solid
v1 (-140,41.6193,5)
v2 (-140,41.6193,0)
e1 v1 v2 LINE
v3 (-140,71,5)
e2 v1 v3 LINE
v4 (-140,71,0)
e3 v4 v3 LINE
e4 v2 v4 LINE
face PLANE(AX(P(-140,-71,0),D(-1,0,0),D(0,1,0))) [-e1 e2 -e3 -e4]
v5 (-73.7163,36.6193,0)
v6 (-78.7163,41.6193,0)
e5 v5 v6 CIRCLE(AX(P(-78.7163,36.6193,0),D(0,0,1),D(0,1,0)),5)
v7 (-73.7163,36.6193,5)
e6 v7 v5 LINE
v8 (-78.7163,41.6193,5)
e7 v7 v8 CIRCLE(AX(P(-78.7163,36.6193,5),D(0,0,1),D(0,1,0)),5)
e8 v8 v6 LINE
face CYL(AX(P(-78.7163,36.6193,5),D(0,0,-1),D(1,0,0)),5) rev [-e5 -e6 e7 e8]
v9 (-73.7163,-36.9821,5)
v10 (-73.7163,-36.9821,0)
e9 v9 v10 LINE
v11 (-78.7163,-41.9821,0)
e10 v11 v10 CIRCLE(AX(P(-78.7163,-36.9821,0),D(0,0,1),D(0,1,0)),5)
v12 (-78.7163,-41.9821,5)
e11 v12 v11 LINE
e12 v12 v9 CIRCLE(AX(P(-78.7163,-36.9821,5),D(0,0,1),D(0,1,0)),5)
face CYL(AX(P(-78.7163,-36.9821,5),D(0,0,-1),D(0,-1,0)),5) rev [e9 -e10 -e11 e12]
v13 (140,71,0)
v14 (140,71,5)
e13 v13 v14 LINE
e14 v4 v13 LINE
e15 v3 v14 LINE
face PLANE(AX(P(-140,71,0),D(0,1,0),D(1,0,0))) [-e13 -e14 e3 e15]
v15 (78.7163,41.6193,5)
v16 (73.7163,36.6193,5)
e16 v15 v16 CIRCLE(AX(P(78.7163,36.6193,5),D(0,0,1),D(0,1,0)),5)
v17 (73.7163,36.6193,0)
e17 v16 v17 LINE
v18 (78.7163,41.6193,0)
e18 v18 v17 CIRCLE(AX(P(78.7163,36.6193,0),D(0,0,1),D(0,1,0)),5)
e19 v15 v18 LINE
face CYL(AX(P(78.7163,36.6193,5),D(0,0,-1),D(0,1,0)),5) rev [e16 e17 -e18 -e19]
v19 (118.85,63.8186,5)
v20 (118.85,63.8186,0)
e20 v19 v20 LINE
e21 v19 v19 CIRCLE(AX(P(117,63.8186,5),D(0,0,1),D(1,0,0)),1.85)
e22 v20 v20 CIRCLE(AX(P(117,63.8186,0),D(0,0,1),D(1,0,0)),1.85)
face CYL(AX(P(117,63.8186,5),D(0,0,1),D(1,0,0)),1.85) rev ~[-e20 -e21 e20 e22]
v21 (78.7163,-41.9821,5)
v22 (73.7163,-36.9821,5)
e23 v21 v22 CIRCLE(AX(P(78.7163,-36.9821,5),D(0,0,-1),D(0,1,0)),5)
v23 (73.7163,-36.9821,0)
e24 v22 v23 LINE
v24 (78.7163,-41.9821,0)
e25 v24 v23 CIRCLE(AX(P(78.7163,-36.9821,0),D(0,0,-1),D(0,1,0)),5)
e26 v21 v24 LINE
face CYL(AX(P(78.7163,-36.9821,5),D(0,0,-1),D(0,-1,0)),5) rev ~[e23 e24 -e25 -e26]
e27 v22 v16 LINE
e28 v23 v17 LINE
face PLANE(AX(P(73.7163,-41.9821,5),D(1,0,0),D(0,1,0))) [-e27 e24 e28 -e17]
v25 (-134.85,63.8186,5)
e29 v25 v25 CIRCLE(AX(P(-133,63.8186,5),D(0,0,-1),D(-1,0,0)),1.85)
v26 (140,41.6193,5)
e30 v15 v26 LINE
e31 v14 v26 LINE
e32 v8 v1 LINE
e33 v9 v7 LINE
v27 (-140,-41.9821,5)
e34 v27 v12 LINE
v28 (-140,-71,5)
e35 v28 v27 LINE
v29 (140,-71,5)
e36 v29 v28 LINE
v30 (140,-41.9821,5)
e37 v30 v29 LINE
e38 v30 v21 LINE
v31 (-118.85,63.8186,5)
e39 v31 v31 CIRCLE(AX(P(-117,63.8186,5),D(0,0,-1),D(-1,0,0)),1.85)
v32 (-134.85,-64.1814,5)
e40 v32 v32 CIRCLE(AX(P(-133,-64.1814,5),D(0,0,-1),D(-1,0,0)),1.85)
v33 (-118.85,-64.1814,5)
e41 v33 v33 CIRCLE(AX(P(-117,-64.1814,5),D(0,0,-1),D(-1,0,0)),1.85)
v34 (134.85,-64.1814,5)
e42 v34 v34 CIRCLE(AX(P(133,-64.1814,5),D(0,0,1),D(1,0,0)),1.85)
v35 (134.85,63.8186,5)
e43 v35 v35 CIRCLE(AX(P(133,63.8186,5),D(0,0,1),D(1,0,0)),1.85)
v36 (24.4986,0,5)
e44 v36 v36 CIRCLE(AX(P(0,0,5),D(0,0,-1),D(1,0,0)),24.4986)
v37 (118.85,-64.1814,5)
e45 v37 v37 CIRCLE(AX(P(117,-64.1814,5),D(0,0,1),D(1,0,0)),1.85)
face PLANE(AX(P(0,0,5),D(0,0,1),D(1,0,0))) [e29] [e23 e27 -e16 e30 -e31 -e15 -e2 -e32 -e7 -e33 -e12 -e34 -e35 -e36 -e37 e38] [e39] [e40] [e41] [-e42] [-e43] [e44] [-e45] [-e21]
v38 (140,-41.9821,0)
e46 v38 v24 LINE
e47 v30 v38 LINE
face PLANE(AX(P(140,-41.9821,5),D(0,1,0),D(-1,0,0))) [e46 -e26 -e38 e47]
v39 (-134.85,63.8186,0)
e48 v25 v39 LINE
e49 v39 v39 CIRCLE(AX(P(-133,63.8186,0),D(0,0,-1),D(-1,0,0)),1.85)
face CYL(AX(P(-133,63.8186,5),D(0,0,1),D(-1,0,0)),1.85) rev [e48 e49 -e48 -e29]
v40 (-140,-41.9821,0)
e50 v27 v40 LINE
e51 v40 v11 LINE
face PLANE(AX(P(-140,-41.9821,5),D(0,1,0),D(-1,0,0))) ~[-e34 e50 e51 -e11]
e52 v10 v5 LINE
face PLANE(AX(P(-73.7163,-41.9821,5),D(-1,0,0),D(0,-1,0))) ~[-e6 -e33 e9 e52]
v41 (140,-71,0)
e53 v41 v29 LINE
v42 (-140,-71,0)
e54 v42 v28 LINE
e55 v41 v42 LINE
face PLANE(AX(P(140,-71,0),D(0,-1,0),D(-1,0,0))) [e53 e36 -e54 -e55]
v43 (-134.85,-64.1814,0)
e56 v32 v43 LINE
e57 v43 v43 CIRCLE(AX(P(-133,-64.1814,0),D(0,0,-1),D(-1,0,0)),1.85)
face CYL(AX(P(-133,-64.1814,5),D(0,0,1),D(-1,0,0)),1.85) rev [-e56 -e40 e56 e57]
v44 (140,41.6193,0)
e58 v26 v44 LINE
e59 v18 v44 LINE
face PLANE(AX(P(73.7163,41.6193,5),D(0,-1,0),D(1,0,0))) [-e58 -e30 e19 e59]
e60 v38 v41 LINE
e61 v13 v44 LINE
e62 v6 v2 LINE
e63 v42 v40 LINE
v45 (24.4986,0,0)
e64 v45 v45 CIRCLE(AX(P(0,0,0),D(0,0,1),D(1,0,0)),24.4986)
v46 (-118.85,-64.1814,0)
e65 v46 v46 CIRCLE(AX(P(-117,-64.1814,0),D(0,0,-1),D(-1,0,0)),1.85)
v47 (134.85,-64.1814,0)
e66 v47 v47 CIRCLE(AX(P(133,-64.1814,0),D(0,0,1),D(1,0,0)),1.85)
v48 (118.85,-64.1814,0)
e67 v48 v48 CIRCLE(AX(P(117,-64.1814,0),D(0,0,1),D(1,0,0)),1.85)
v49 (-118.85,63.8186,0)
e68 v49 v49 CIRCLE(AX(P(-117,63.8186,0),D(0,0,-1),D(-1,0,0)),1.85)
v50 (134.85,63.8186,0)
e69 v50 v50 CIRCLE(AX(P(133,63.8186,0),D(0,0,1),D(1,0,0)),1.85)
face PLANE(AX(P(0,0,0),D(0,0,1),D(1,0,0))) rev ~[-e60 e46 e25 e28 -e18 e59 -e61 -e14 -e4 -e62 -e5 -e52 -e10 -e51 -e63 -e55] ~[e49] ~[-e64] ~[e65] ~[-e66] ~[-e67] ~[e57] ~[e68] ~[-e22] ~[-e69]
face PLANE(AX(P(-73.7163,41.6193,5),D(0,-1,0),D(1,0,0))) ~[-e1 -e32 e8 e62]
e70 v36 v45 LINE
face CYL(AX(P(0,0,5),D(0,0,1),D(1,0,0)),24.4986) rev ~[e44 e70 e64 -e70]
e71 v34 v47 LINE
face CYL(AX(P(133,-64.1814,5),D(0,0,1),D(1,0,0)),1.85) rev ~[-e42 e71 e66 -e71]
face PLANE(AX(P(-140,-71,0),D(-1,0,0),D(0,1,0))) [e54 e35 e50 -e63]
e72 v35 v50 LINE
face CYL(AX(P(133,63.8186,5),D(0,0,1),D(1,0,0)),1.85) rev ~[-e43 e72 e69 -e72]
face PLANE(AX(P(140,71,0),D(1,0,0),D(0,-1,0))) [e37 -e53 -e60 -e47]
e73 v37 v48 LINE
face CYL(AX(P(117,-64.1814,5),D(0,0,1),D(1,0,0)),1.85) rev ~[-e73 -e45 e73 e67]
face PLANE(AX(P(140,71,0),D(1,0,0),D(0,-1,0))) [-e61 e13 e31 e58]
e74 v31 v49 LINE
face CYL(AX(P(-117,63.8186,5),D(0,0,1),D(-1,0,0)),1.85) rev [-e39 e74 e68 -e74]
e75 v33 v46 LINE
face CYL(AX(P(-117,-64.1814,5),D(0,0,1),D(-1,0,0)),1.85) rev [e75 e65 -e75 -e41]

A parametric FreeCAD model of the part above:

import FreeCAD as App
import Part
import Sketcher
from FreeCAD import Vector
Q = App.Units.Quantity


def edges_at(feature, points):
    """Names of the edges that pass closest to the given points."""
    edges = feature.Shape.Edges
    near = lambda p: min(range(len(edges)), key=lambda i: edges[i].distToShape(Part.Vertex(*p))[0])
    return sorted({f"Edge{near(p) + 1}" for p in points})


def add_polygon(sketch, points):
    """Adds a closed chain of lines whose ends are joined by coincident constraints."""
    first, n = sketch.GeometryCount, len(points)
    for a, b in zip(points, points[1:] + points[:1]):
        sketch.addGeometry(Part.LineSegment(App.Vector(*a, 0), App.Vector(*b, 0)), False)
    for i in range(n):
        sketch.addConstraint(Sketcher.Constraint("Coincident", first + i, 2, first + (i + 1) % n, 1))

doc = App.newDocument("Part")
body = doc.addObject("PartDesign::Body", "Body")

# Sketch on XY plane
sketch1 = doc.addObject("Sketcher::SketchObject", "Sketch")
body.addObject(sketch1)
sketch1.AttachmentSupport = (doc.XY_Plane, [""])
sketch1.MapMode = "FlatFace"
add_polygon(sketch1, [(-140, -71), (140, -71), (140, 71), (-140, 71)])  # lines 0-3
sketch1.addConstraint([
    Sketcher.Constraint("Horizontal", 0),
    Sketcher.Constraint("Vertical", 1),
    Sketcher.Constraint("Horizontal", 2),
    Sketcher.Constraint("Vertical", 3),
    Sketcher.Constraint("Symmetric", 0, 2, 2, 2, -1, 1),
    Sketcher.Constraint("DistanceX", 0, 1, 0, 2, Q("280 mm")),
    Sketcher.Constraint("DistanceY", 1, 1, 1, 2, Q("142 mm")),
])
pad1 = doc.addObject("PartDesign::Pad", "Pad")
body.addObject(pad1)
pad1.Profile = sketch1
pad1.Length = 5

# Sketch on XY plane
sketch2 = doc.addObject("Sketcher::SketchObject", "Sketch001")
body.addObject(sketch2)
sketch2.AttachmentSupport = (doc.XY_Plane, [""])
sketch2.MapMode = "FlatFace"
sketch2.AttachmentOffset = App.Placement(Vector(0, 0, 5), App.Rotation())
sketch2.addGeometry(Part.Circle(Vector(117, 63.8, 0), Vector(0, 0, 1), 1.9), False)  # 0
sketch2.addGeometry(Part.Circle(Vector(133, 63.8, 0), Vector(0, 0, 1), 1.9), False)  # 1
sketch2.addGeometry(Part.Circle(Vector(117, -64.2, 0), Vector(0, 0, 1), 1.9), False)  # 2
sketch2.addGeometry(Part.Circle(Vector(133, -64.2, 0), Vector(0, 0, 1), 1.9), False)  # 3
add_polygon(sketch2, [(73.7, -42), (140, -42), (140, 41.6), (73.7, 41.6)])  # lines 4-7
sketch2.addConstraint([
    Sketcher.Constraint("Horizontal", 4),
    Sketcher.Constraint("Vertical", 5),
    Sketcher.Constraint("Horizontal", 6),
    Sketcher.Constraint("Vertical", 7),
    Sketcher.Constraint("Equal", 0, 1),
    Sketcher.Constraint("Equal", 1, 2),
    Sketcher.Constraint("Equal", 2, 3),
    Sketcher.Constraint("Horizontal", 0, 3, 1, 3),
    Sketcher.Constraint("Horizontal", 2, 3, 3, 3),
    Sketcher.Constraint("Vertical", 0, 3, 2, 3),
    Sketcher.Constraint("Vertical", 1, 3, 3, 3),
    Sketcher.Constraint("Diameter", 0, Q("3.7 mm")),
    Sketcher.Constraint("DistanceX", -1, 1, 0, 3, Q("117 mm")),
    Sketcher.Constraint("DistanceX", -1, 1, 1, 3, Q("133 mm")),
    Sketcher.Constraint("DistanceX", -1, 1, 4, 2, Q("140 mm")),
    Sketcher.Constraint("DistanceY", 2, 3, 0, 3, Q("128 mm")),
    Sketcher.Constraint("DistanceX", 4, 1, 4, 2, Q("66.2837 mm")),
    Sketcher.Constraint("DistanceY", 5, 1, 5, 2, Q("83.6014 mm")),
    Sketcher.Constraint("DistanceY", 4, 2, -1, 1, Q("41.982 mm")),
    Sketcher.Constraint("DistanceY", -1, 1, 0, 3, Q("63.8186 mm")),
])
pocket1 = doc.addObject("PartDesign::Pocket", "Pocket")
body.addObject(pocket1)
pocket1.Profile = sketch2
pocket1.Length = 5
doc.recompute()

mirrored = doc.addObject("PartDesign::Mirrored", "Mirrored")
body.addObject(mirrored)
mirrored.Originals = [pocket1]
mirrored.MirrorPlane = (doc.YZ_Plane, [""])
body.Tip = mirrored
doc.recompute()

fillet = doc.addObject("PartDesign::Fillet", "Fillet")
body.addObject(fillet)
fillet.Base = (mirrored, edges_at(mirrored, [
    (73.716, -41.982, 2.5),
    (73.716, 41.619, 2.5),
    (-73.716, 41.619, 2.5),
    (-73.716, -41.982, 2.5),
]))
fillet.Radius = 5

# Sketch on XY plane
sketch3 = doc.addObject("Sketcher::SketchObject", "Sketch002")
body.addObject(sketch3)
sketch3.AttachmentSupport = (doc.XY_Plane, [""])
sketch3.MapMode = "FlatFace"
sketch3.AttachmentOffset = App.Placement(Vector(0, 0, 5), App.Rotation())
sketch3.addGeometry(Part.Circle(Vector(0, 0, 0), Vector(0, 0, 1), 24), False)
sketch3.addConstraint([
    Sketcher.Constraint("Coincident", 0, 3, -1, 1),
    Sketcher.Constraint("Diameter", 0, Q("48.9972 mm")),
])
pocket2 = doc.addObject("PartDesign::Pocket", "Pocket001")
body.addObject(pocket2)
pocket2.Profile = sketch3
pocket2.Length = 10

doc.recompute()
